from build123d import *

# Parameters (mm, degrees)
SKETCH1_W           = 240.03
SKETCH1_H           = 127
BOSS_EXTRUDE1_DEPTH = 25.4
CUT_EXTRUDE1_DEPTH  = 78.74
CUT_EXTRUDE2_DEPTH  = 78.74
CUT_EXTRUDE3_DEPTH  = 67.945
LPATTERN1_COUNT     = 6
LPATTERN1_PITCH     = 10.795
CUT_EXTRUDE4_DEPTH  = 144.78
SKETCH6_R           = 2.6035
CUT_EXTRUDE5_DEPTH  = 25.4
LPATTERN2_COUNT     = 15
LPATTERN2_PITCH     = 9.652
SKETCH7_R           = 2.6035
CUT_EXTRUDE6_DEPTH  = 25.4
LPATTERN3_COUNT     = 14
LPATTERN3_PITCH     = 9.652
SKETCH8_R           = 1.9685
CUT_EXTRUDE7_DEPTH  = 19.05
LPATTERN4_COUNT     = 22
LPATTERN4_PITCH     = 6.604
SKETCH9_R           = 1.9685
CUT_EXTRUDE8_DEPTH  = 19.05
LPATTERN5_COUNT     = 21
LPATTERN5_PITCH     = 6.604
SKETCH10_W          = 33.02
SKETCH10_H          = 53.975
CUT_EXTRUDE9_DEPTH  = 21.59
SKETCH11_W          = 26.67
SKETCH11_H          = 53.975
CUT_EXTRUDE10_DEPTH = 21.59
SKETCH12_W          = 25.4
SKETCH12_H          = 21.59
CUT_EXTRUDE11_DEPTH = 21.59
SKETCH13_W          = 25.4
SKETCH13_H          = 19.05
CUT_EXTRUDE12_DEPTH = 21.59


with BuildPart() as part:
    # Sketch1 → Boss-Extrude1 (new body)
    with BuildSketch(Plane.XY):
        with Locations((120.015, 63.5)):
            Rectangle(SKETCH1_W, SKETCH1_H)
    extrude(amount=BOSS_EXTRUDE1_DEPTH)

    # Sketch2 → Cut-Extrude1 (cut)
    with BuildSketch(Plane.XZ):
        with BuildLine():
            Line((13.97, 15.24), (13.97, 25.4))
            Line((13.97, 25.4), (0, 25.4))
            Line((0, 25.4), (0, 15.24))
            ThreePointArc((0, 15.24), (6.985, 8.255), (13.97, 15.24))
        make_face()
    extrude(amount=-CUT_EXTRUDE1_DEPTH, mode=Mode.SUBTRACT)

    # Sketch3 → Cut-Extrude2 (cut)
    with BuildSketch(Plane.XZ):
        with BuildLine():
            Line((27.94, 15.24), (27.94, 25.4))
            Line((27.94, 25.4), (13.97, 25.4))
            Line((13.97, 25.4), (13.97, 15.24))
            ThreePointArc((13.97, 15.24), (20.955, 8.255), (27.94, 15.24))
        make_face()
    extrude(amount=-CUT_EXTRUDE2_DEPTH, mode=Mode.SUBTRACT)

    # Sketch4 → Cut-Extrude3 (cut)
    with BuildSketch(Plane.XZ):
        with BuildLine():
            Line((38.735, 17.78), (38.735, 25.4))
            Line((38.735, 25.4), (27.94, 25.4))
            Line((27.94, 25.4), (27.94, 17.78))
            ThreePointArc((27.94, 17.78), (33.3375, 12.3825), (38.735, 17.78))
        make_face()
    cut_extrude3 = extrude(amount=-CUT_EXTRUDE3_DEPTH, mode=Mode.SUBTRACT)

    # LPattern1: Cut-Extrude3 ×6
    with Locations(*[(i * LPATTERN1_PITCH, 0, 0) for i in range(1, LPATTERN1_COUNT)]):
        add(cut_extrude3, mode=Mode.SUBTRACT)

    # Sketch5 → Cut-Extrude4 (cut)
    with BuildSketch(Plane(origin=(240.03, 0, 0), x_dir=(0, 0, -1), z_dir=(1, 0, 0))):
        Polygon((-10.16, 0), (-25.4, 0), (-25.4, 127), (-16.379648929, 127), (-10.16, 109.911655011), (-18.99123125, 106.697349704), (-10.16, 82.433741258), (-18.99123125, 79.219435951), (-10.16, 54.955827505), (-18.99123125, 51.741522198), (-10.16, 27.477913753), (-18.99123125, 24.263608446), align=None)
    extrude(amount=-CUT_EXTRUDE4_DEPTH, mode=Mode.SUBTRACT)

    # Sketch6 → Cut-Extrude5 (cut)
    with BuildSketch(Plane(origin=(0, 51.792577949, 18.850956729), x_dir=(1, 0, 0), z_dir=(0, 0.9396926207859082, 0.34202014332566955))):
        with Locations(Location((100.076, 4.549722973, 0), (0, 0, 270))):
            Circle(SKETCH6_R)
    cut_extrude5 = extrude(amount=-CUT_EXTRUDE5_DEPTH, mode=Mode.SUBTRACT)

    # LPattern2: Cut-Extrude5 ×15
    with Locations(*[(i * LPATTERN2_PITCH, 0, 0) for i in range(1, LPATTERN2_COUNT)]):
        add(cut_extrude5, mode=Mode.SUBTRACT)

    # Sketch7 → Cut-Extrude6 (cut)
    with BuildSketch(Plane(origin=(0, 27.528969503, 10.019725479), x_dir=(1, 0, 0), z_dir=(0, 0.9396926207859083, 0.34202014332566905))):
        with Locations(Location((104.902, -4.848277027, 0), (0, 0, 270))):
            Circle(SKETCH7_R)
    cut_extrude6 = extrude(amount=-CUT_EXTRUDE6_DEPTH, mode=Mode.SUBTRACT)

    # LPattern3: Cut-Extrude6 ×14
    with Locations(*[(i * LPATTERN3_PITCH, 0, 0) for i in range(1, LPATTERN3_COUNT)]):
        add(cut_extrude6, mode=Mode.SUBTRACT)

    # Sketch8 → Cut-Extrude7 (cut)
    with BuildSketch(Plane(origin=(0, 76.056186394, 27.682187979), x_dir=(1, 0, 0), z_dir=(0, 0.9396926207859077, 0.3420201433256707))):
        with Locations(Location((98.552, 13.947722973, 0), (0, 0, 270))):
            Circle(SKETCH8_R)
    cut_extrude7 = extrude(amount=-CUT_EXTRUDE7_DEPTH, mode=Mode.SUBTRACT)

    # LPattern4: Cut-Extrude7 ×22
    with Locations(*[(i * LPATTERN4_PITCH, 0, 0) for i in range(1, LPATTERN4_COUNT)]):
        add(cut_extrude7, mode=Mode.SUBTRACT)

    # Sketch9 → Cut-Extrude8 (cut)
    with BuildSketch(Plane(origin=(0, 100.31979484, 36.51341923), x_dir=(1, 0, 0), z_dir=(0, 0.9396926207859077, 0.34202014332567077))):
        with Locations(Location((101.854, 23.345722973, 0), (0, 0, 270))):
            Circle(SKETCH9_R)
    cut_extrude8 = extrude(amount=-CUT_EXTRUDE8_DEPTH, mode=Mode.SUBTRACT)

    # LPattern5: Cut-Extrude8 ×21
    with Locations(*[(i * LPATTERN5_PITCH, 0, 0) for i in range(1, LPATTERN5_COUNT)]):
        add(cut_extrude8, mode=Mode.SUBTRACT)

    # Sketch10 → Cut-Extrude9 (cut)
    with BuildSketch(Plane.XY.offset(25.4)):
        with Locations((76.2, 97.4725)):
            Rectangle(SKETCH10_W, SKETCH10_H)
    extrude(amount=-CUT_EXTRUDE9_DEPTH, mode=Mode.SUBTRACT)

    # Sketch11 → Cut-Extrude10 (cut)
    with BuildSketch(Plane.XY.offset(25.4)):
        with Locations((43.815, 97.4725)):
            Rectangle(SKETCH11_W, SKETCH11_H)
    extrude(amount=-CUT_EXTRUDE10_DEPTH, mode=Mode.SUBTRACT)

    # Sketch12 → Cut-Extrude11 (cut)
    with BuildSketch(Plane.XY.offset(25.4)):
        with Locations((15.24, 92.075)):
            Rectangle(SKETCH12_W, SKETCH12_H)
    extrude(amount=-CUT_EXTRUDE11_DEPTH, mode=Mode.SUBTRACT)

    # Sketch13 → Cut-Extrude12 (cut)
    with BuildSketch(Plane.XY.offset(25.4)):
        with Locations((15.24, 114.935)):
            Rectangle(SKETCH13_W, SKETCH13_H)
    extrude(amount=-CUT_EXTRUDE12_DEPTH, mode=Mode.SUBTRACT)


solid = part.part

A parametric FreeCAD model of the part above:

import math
import FreeCAD as App
import Part
import Sketcher
Q = App.Units.Quantity

doc = App.newDocument("Part")
params = doc.addObject("Spreadsheet::Sheet", "Params")
for row, (alias, value) in enumerate([
    ("sketch1_height", "5 in"),
    ("sketch1_width", "9.45 in"),
    ("pad1_length", "1 in"),
    ("sketch2_height", "0.4 in"),
    ("sketch2_radius", "0.275 in"),
    ("pocket1_length", "3.1 in"),
    ("sketch3_height", "0.4 in"),
    ("sketch3_radius", "0.275 in"),
    ("pocket2_length", "3.1 in"),
    ("sketch4_height", "0.3 in"),
    ("pocket3_length", "2.675 in"),
    ("linearpattern_pitch", "0.425 in"),
    ("sketch5_width", "5 in"),
    ("sketch5_height", "0.6 in"),
    ("sketch5_length", "0.37 in"),
    ("pocket4_length", "5.7 in"),
    ("sketch6_diameter", "0.205 in"),
    ("pocket5_length", "1 in"),
    ("linearpattern2_pitch", "0.38 in"),
    ("sketch7_diameter", "0.205 in"),
    ("pocket6_length", "1 in"),
    ("linearpattern3_pitch", "0.38 in"),
    ("sketch8_diameter", "0.155 in"),
    ("pocket7_length", "0.75 in"),
    ("linearpattern4_pitch", "0.26 in"),
    ("sketch9_diameter", "0.155 in"),
    ("pocket8_length", "0.75 in"),
    ("linearpattern5_pitch", "0.26 in"),
    ("sketch10_width", "1.3 in"),
    ("sketch10_height", "2.125 in"),
    ("pocket9_length", "0.85 in"),
    ("sketch11_width", "1.05 in"),
    ("sketch11_height", "2.125 in"),
    ("pocket10_length", "0.85 in"),
    ("sketch12_width", "1 in"),
    ("sketch12_height", "0.85 in"),
    ("pocket11_length", "0.85 in"),
    ("sketch13_width", "1 in"),
    ("sketch13_height", "0.75 in"),
    ("pocket12_length", "0.85 in"),
], start=1):
    params.set(f"A{row}", alias)
    params.set(f"B{row}", "=" + value)
    params.setAlias(f"B{row}", alias)

body = doc.addObject("PartDesign::Body", "Body")

# Sketch on XY plane
sketch1 = body.newObject("Sketcher::SketchObject", "Sketch")
sketch1.AttachmentSupport = (doc.getObject("XY_Plane"), [""])
sketch1.MapMode = "FlatFace"
sketch1.addGeometry(Part.LineSegment(App.Vector(0, 127, 0), App.Vector(0, 0, 0)), False)
sketch1.addGeometry(Part.LineSegment(App.Vector(0, 0, 0), App.Vector(240, 0, 0)), False)
sketch1.addGeometry(Part.LineSegment(App.Vector(240, 0, 0), App.Vector(240, 127, 0)), False)
sketch1.addGeometry(Part.LineSegment(App.Vector(240, 127, 0), App.Vector(0, 127, 0)), False)
sketch1.addConstraint(Sketcher.Constraint("Coincident", 0, 2, 1, 1))
sketch1.addConstraint(Sketcher.Constraint("Coincident", 1, 2, 2, 1))
sketch1.addConstraint(Sketcher.Constraint("Coincident", 2, 2, 3, 1))
sketch1.addConstraint(Sketcher.Constraint("Coincident", 3, 2, 0, 1))
sketch1.addConstraint(Sketcher.Constraint("Vertical", 0))
sketch1.addConstraint(Sketcher.Constraint("Horizontal", 1))
sketch1.addConstraint(Sketcher.Constraint("Vertical", 2))
sketch1.addConstraint(Sketcher.Constraint("Horizontal", 3))
sketch1.addConstraint(Sketcher.Constraint("Coincident", 0, 2, -1, 1))
sketch1.addConstraint(Sketcher.Constraint("DistanceY", 0, 2, 0, 1, Q("5 in")))
sketch1.addConstraint(Sketcher.Constraint("DistanceX", 1, 1, 1, 2, Q("9.45 in")))
sketch1.setExpression("Constraints[9]", "Params.sketch1_height")
sketch1.setExpression("Constraints[10]", "Params.sketch1_width")
pad1 = body.newObject("PartDesign::Pad", "Pad")
pad1.Profile = sketch1
pad1.setExpression("Length", "Params.pad1_length")

# Sketch on XZ plane
sketch2 = body.newObject("Sketcher::SketchObject", "Sketch001")
sketch2.AttachmentSupport = (doc.getObject("XZ_Plane"), [""])
sketch2.MapMode = "FlatFace"
sketch2.addGeometry(Part.LineSegment(App.Vector(14, 15, 0), App.Vector(14, 25, 0)), False)
sketch2.addGeometry(Part.LineSegment(App.Vector(14, 25, 0), App.Vector(0, 25, 0)), False)
sketch2.addGeometry(Part.LineSegment(App.Vector(0, 25, 0), App.Vector(0, 15, 0)), False)
sketch2.addGeometry(Part.ArcOfCircle(Part.Circle(App.Vector(7, 15, 0), App.Vector(0, 0, 1), 7), math.radians(180), math.radians(360)), False)
sketch2.addConstraint(Sketcher.Constraint("Coincident", 0, 2, 1, 1))
sketch2.addConstraint(Sketcher.Constraint("Coincident", 1, 2, 2, 1))
sketch2.addConstraint(Sketcher.Constraint("Tangent", 2, 2, 3, 1))
sketch2.addConstraint(Sketcher.Constraint("Tangent", 3, 2, 0, 1))
sketch2.addConstraint(Sketcher.Constraint("Vertical", 0))
sketch2.addConstraint(Sketcher.Constraint("Horizontal", 1))
sketch2.addConstraint(Sketcher.Constraint("Vertical", 2))
sketch2.addConstraint(Sketcher.Constraint("PointOnObject", 1, 2, -2))
sketch2.addConstraint(Sketcher.Constraint("DistanceY", 0, 1, 0, 2, Q("0.4 in")))
sketch2.addConstraint(Sketcher.Constraint("DistanceY", -1, 1, 0, 2, Q("1 in")))
sketch2.addConstraint(Sketcher.Constraint("Radius", 3, Q("0.275 in")))
sketch2.setExpression("Constraints[8]", "Params.sketch2_height")
sketch2.setExpression("Constraints[10]", "Params.sketch2_radius")
pocket1 = body.newObject("PartDesign::Pocket", "Pocket")
pocket1.Profile = sketch2
pocket1.setExpression("Length", "Params.pocket1_length")

# Sketch on XZ plane
sketch3 = body.newObject("Sketcher::SketchObject", "Sketch002")
sketch3.AttachmentSupport = (doc.getObject("XZ_Plane"), [""])
sketch3.MapMode = "FlatFace"
sketch3.addGeometry(Part.LineSegment(App.Vector(28, 15, 0), App.Vector(28, 25, 0)), False)
sketch3.addGeometry(Part.LineSegment(App.Vector(28, 25, 0), App.Vector(14, 25, 0)), False)
sketch3.addGeometry(Part.LineSegment(App.Vector(14, 25, 0), App.Vector(14, 15, 0)), False)
sketch3.addGeometry(Part.ArcOfCircle(Part.Circle(App.Vector(21, 15, 0), App.Vector(0, 0, 1), 7), math.radians(180), math.radians(360)), False)
sketch3.addConstraint(Sketcher.Constraint("Coincident", 0, 2, 1, 1))
sketch3.addConstraint(Sketcher.Constraint("Coincident", 1, 2, 2, 1))
sketch3.addConstraint(Sketcher.Constraint("Tangent", 2, 2, 3, 1))
sketch3.addConstraint(Sketcher.Constraint("Tangent", 3, 2, 0, 1))
sketch3.addConstraint(Sketcher.Constraint("Vertical", 0))
sketch3.addConstraint(Sketcher.Constraint("Horizontal", 1))
sketch3.addConstraint(Sketcher.Constraint("Vertical", 2))
sketch3.addConstraint(Sketcher.Constraint("DistanceY", 0, 1, 0, 2, Q("0.4 in")))
sketch3.addConstraint(Sketcher.Constraint("DistanceY", -1, 1, 0, 2, Q("1 in")))
sketch3.addConstraint(Sketcher.Constraint("Radius", 3, Q("0.275 in")))
sketch3.addConstraint(Sketcher.Constraint("DistanceX", -1, 1, 0, 2, Q("1.1 in")))
sketch3.setExpression("Constraints[7]", "Params.sketch3_height")
sketch3.setExpression("Constraints[9]", "Params.sketch3_radius")
pocket2 = body.newObject("PartDesign::Pocket", "Pocket001")
pocket2.Profile = sketch3
pocket2.setExpression("Length", "Params.pocket2_length")

# Sketch on XZ plane
sketch4 = body.newObject("Sketcher::SketchObject", "Sketch003")
sketch4.AttachmentSupport = (doc.getObject("XZ_Plane"), [""])
sketch4.MapMode = "FlatFace"
sketch4.addGeometry(Part.LineSegment(App.Vector(39, 18, 0), App.Vector(39, 25, 0)), False)
sketch4.addGeometry(Part.LineSegment(App.Vector(39, 25, 0), App.Vector(28, 25, 0)), False)
sketch4.addGeometry(Part.LineSegment(App.Vector(28, 25, 0), App.Vector(28, 18, 0)), False)
sketch4.addGeometry(Part.ArcOfCircle(Part.Circle(App.Vector(33, 18, 0), App.Vector(0, 0, 1), 5), math.radians(180), math.radians(360)), False)
sketch4.addConstraint(Sketcher.Constraint("Coincident", 0, 2, 1, 1))
sketch4.addConstraint(Sketcher.Constraint("Coincident", 1, 2, 2, 1))
sketch4.addConstraint(Sketcher.Constraint("Tangent", 2, 2, 3, 1))
sketch4.addConstraint(Sketcher.Constraint("Tangent", 3, 2, 0, 1))
sketch4.addConstraint(Sketcher.Constraint("Vertical", 0))
sketch4.addConstraint(Sketcher.Constraint("Horizontal", 1))
sketch4.addConstraint(Sketcher.Constraint("Vertical", 2))
sketch4.addConstraint(Sketcher.Constraint("DistanceY", 0, 1, 0, 2, Q("0.3 in")))
sketch4.addConstraint(Sketcher.Constraint("DistanceY", -1, 1, 0, 2, Q("1 in")))
sketch4.addConstraint(Sketcher.Constraint("DistanceX", -1, 1, 1, 2, Q("1.1 in")))
sketch4.addConstraint(Sketcher.Constraint("Radius", 3, Q("0.2125 in")))
sketch4.setExpression("Constraints[7]", "Params.sketch4_height")
pocket3 = body.newObject("PartDesign::Pocket", "Pocket002")
pocket3.Profile = sketch4
pocket3.setExpression("Length", "Params.pocket3_length")
doc.recompute()

linearpattern = body.newObject("PartDesign::LinearPattern", "LinearPattern")
linearpattern.Originals = [pocket3]
linearpattern.Direction = (doc.getObject("X_Axis"), [""])
linearpattern.Mode = "offset"
linearpattern.setExpression("Offset", "Params.linearpattern_pitch")
linearpattern.Occurrences = 6
body.Tip = linearpattern

# Sketch on YZ plane
sketch5 = body.newObject("Sketcher::SketchObject", "Sketch004")
sketch5.AttachmentSupport = (doc.getObject("YZ_Plane"), [""])
sketch5.MapMode = "FlatFace"
sketch5.AttachmentOffset = App.Placement(App.Vector(0, 0, 9.45 * 25.4), App.Rotation())
sketch5.addGeometry(Part.LineSegment(App.Vector(0, 25, 0), App.Vector(0, 10, 0)), False)
sketch5.addGeometry(Part.LineSegment(App.Vector(0, 10, 0), App.Vector(24, 19, 0)), False)
sketch5.addGeometry(Part.LineSegment(App.Vector(24, 19, 0), App.Vector(27, 10, 0)), False)
sketch5.addGeometry(Part.LineSegment(App.Vector(27, 10, 0), App.Vector(52, 19, 0)), False)
sketch5.addGeometry(Part.LineSegment(App.Vector(52, 19, 0), App.Vector(55, 10, 0)), False)
sketch5.addGeometry(Part.LineSegment(App.Vector(55, 10, 0), App.Vector(79, 19, 0)), False)
sketch5.addGeometry(Part.LineSegment(App.Vector(79, 19, 0), App.Vector(82, 10, 0)), False)
sketch5.addGeometry(Part.LineSegment(App.Vector(82, 10, 0), App.Vector(107, 19, 0)), False)
sketch5.addGeometry(Part.LineSegment(App.Vector(107, 19, 0), App.Vector(110, 10, 0)), False)
sketch5.addGeometry(Part.LineSegment(App.Vector(110, 10, 0), App.Vector(127, 16, 0)), False)
sketch5.addGeometry(Part.LineSegment(App.Vector(127, 16, 0), App.Vector(127, 25, 0)), False)
sketch5.addGeometry(Part.LineSegment(App.Vector(127, 25, 0), App.Vector(0, 25, 0)), False)
sketch5.addConstraint(Sketcher.Constraint("Coincident", 0, 2, 1, 1))
sketch5.addConstraint(Sketcher.Constraint("Coincident", 1, 2, 2, 1))
sketch5.addConstraint(Sketcher.Constraint("Coincident", 2, 2, 3, 1))
sketch5.addConstraint(Sketcher.Constraint("Coincident", 3, 2, 4, 1))
sketch5.addConstraint(Sketcher.Constraint("Coincident", 4, 2, 5, 1))
sketch5.addConstraint(Sketcher.Constraint("Coincident", 5, 2, 6, 1))
sketch5.addConstraint(Sketcher.Constraint("Coincident", 6, 2, 7, 1))
sketch5.addConstraint(Sketcher.Constraint("Coincident", 7, 2, 8, 1))
sketch5.addConstraint(Sketcher.Constraint("Coincident", 8, 2, 9, 1))
sketch5.addConstraint(Sketcher.Constraint("Coincident", 9, 2, 10, 1))
sketch5.addConstraint(Sketcher.Constraint("Coincident", 10, 2, 11, 1))
sketch5.addConstraint(Sketcher.Constraint("Coincident", 11, 2, 0, 1))
sketch5.addConstraint(Sketcher.Constraint("Vertical", 0))
sketch5.addConstraint(Sketcher.Constraint("Vertical", 10))
sketch5.addConstraint(Sketcher.Constraint("Horizontal", 11))
sketch5.addConstraint(Sketcher.Constraint("PointOnObject", 0, 2, -2))
sketch5.addConstraint(Sketcher.Constraint("Perpendicular", 1, 2))
sketch5.addConstraint(Sketcher.Constraint("Perpendicular", 2, 3))
sketch5.addConstraint(Sketcher.Constraint("Perpendicular", 3, 4))
sketch5.addConstraint(Sketcher.Constraint("Perpendicular", 4, 5))
sketch5.addConstraint(Sketcher.Constraint("Perpendicular", 5, 6))
sketch5.addConstraint(Sketcher.Constraint("Perpendicular", 6, 7))
sketch5.addConstraint(Sketcher.Constraint("Perpendicular", 7, 8))
sketch5.addConstraint(Sketcher.Constraint("Perpendicular", 8, 9))
sketch5.addConstraint(Sketcher.Constraint("Horizontal", 0, 2, 2, 2))
sketch5.addConstraint(Sketcher.Constraint("Horizontal", 1, 2, 3, 2))
sketch5.addConstraint(Sketcher.Constraint("Horizontal", 2, 2, 4, 2))
sketch5.addConstraint(Sketcher.Constraint("Horizontal", 3, 2, 5, 2))
sketch5.addConstraint(Sketcher.Constraint("Horizontal", 4, 2, 6, 2))
sketch5.addConstraint(Sketcher.Constraint("Horizontal", 5, 2, 7, 2))
sketch5.addConstraint(Sketcher.Constraint("Horizontal", 6, 2, 8, 2))
sketch5.addConstraint(Sketcher.Constraint("DistanceX", 11, 2, 11, 1, Q("5 in")))
sketch5.addConstraint(Sketcher.Constraint("DistanceY", 0, 2, 0, 1, Q("0.6 in")))
sketch5.addConstraint(Sketcher.Constraint("DistanceY", -1, 1, 10, 2, Q("1 in")))
sketch5.addConstraint(Sketcher.Constraint("Angle", 1, Q("20 deg")))
sketch5.addConstraint(Sketcher.Constraint("Distance", 2, Q("0.37 in")))
sketch5.setExpression("Constraints[31]", "Params.sketch5_width")
sketch5.setExpression("Constraints[32]", "Params.sketch5_height")
sketch5.setExpression("Constraints[35]", "Params.sketch5_length")
pocket4 = body.newObject("PartDesign::Pocket", "Pocket003")
pocket4.Profile = sketch5
pocket4.setExpression("Length", "Params.pocket4_length")

# Sketch on an angled plane
sketch6 = body.newObject("Sketcher::SketchObject", "Sketch005")
sketch6.Placement = App.Placement(App.Vector(0, 51.792578, 18.850957), App.Rotation(App.Vector(1, 0, 0), App.Vector(0, 0.342020143, -0.939692621), App.Vector(0, 0.939692621, 0.342020143), "ZXY"))
sketch6.addGeometry(Part.Circle(App.Vector(100.1, 4.5, 0), App.Vector(0, 0, 1), 2.6), False)
sketch6.addConstraint(Sketcher.Constraint("Diameter", 0, Q("0.205 in")))
sketch6.addConstraint(Sketcher.Constraint("DistanceX", -1, 1, 0, 3, Q("3.94 in")))
sketch6.addConstraint(Sketcher.Constraint("DistanceY", -1, 1, 0, 3, Q("4.549723 mm")))
sketch6.setExpression("Constraints[0]", "Params.sketch6_diameter")
pocket5 = body.newObject("PartDesign::Pocket", "Pocket004")
pocket5.Profile = sketch6
pocket5.setExpression("Length", "Params.pocket5_length")
doc.recompute()

linearpattern2 = body.newObject("PartDesign::LinearPattern", "LinearPattern001")
linearpattern2.Originals = [pocket5]
linearpattern2.Direction = (doc.getObject("X_Axis"), [""])
linearpattern2.Mode = "offset"
linearpattern2.setExpression("Offset", "Params.linearpattern2_pitch")
linearpattern2.Occurrences = 15
body.Tip = linearpattern2

# Sketch on an angled plane
sketch7 = body.newObject("Sketcher::SketchObject", "Sketch006")
sketch7.Placement = App.Placement(App.Vector(0, 27.52897, 10.019725), App.Rotation(App.Vector(1, 0, 0), App.Vector(0, 0.342020143, -0.939692621), App.Vector(0, 0.939692621, 0.342020143), "ZXY"))
sketch7.addGeometry(Part.Circle(App.Vector(104.9, -4.8, 0), App.Vector(0, 0, 1), 2.6), False)
sketch7.addConstraint(Sketcher.Constraint("Diameter", 0, Q("0.205 in")))
sketch7.addConstraint(Sketcher.Constraint("DistanceX", -1, 1, 0, 3, Q("4.13 in")))
sketch7.addConstraint(Sketcher.Constraint("DistanceY", 0, 3, -1, 1, Q("4.848277 mm")))
sketch7.setExpression("Constraints[0]", "Params.sketch7_diameter")
pocket6 = body.newObject("PartDesign::Pocket", "Pocket005")
pocket6.Profile = sketch7
pocket6.setExpression("Length", "Params.pocket6_length")
doc.recompute()

linearpattern3 = body.newObject("PartDesign::LinearPattern", "LinearPattern002")
linearpattern3.Originals = [pocket6]
linearpattern3.Direction = (doc.getObject("X_Axis"), [""])
linearpattern3.Mode = "offset"
linearpattern3.setExpression("Offset", "Params.linearpattern3_pitch")
linearpattern3.Occurrences = 14
body.Tip = linearpattern3

# Sketch on an angled plane
sketch8 = body.newObject("Sketcher::SketchObject", "Sketch007")
sketch8.Placement = App.Placement(App.Vector(0, 76.056186, 27.682188), App.Rotation(App.Vector(1, 0, 0), App.Vector(0, 0.342020143, -0.939692621), App.Vector(0, 0.939692621, 0.342020143), "ZXY"))
sketch8.addGeometry(Part.Circle(App.Vector(98.6, 13.9, 0), App.Vector(0, 0, 1), 2), False)
sketch8.addConstraint(Sketcher.Constraint("Diameter", 0, Q("0.155 in")))
sketch8.addConstraint(Sketcher.Constraint("DistanceX", -1, 1, 0, 3, Q("3.88 in")))
sketch8.addConstraint(Sketcher.Constraint("DistanceY", -1, 1, 0, 3, Q("13.947723 mm")))
sketch8.setExpression("Constraints[0]", "Params.sketch8_diameter")
pocket7 = body.newObject("PartDesign::Pocket", "Pocket006")
pocket7.Profile = sketch8
pocket7.setExpression("Length", "Params.pocket7_length")
doc.recompute()

linearpattern4 = body.newObject("PartDesign::LinearPattern", "LinearPattern003")
linearpattern4.Originals = [pocket7]
linearpattern4.Direction = (doc.getObject("X_Axis"), [""])
linearpattern4.Mode = "offset"
linearpattern4.setExpression("Offset", "Params.linearpattern4_pitch")
linearpattern4.Occurrences = 22
body.Tip = linearpattern4

# Sketch on an angled plane
sketch9 = body.newObject("Sketcher::SketchObject", "Sketch008")
sketch9.Placement = App.Placement(App.Vector(0, 100.319795, 36.513419), App.Rotation(App.Vector(1, 0, 0), App.Vector(0, 0.342020143, -0.939692621), App.Vector(0, 0.939692621, 0.342020143), "ZXY"))
sketch9.addGeometry(Part.Circle(App.Vector(101.9, 23.3, 0), App.Vector(0, 0, 1), 2), False)
sketch9.addConstraint(Sketcher.Constraint("Diameter", 0, Q("0.155 in")))
sketch9.addConstraint(Sketcher.Constraint("DistanceX", -1, 1, 0, 3, Q("4.01 in")))
sketch9.addConstraint(Sketcher.Constraint("DistanceY", -1, 1, 0, 3, Q("23.345723 mm")))
sketch9.setExpression("Constraints[0]", "Params.sketch9_diameter")
pocket8 = body.newObject("PartDesign::Pocket", "Pocket007")
pocket8.Profile = sketch9
pocket8.setExpression("Length", "Params.pocket8_length")
doc.recompute()

linearpattern5 = body.newObject("PartDesign::LinearPattern", "LinearPattern004")
linearpattern5.Originals = [pocket8]
linearpattern5.Direction = (doc.getObject("X_Axis"), [""])
linearpattern5.Mode = "offset"
linearpattern5.setExpression("Offset", "Params.linearpattern5_pitch")
linearpattern5.Occurrences = 21
body.Tip = linearpattern5

# Sketch on XY plane
sketch10 = body.newObject("Sketcher::SketchObject", "Sketch009")
sketch10.AttachmentSupport = (doc.getObject("XY_Plane"), [""])
sketch10.MapMode = "FlatFace"
sketch10.AttachmentOffset = App.Placement(App.Vector(0, 0, 1 * 25.4), App.Rotation())
sketch10.addGeometry(Part.LineSegment(App.Vector(60, 124, 0), App.Vector(60, 70, 0)), False)
sketch10.addGeometry(Part.LineSegment(App.Vector(60, 70, 0), App.Vector(93, 70, 0)), False)
sketch10.addGeometry(Part.LineSegment(App.Vector(93, 70, 0), App.Vector(93, 124, 0)), False)
sketch10.addGeometry(Part.LineSegment(App.Vector(93, 124, 0), App.Vector(60, 124, 0)), False)
sketch10.addConstraint(Sketcher.Constraint("Coincident", 0, 2, 1, 1))
sketch10.addConstraint(Sketcher.Constraint("Coincident", 1, 2, 2, 1))
sketch10.addConstraint(Sketcher.Constraint("Coincident", 2, 2, 3, 1))
sketch10.addConstraint(Sketcher.Constraint("Coincident", 3, 2, 0, 1))
sketch10.addConstraint(Sketcher.Constraint("Vertical", 0))
sketch10.addConstraint(Sketcher.Constraint("Horizontal", 1))
sketch10.addConstraint(Sketcher.Constraint("Vertical", 2))
sketch10.addConstraint(Sketcher.Constraint("Horizontal", 3))
sketch10.addConstraint(Sketcher.Constraint("DistanceX", 1, 1, 1, 2, Q("1.3 in")))
sketch10.addConstraint(Sketcher.Constraint("DistanceY", -1, 1, 2, 2, Q("4.9 in")))
sketch10.addConstraint(Sketcher.Constraint("DistanceY", 0, 2, 0, 1, Q("2.125 in")))
sketch10.addConstraint(Sketcher.Constraint("DistanceX", -1, 1, 0, 2, Q("2.35 in")))
sketch10.setExpression("Constraints[8]", "Params.sketch10_width")
sketch10.setExpression("Constraints[10]", "Params.sketch10_height")
pocket9 = body.newObject("PartDesign::Pocket", "Pocket008")
pocket9.Profile = sketch10
pocket9.setExpression("Length", "Params.pocket9_length")

# Sketch on XY plane
sketch11 = body.newObject("Sketcher::SketchObject", "Sketch010")
sketch11.AttachmentSupport = (doc.getObject("XY_Plane"), [""])
sketch11.MapMode = "FlatFace"
sketch11.AttachmentOffset = App.Placement(App.Vector(0, 0, 1 * 25.4), App.Rotation())
sketch11.addGeometry(Part.LineSegment(App.Vector(30, 124, 0), App.Vector(30, 70, 0)), False)
sketch11.addGeometry(Part.LineSegment(App.Vector(30, 70, 0), App.Vector(57, 70, 0)), False)
sketch11.addGeometry(Part.LineSegment(App.Vector(57, 70, 0), App.Vector(57, 124, 0)), False)
sketch11.addGeometry(Part.LineSegment(App.Vector(57, 124, 0), App.Vector(30, 124, 0)), False)
sketch11.addConstraint(Sketcher.Constraint("Coincident", 0, 2, 1, 1))
sketch11.addConstraint(Sketcher.Constraint("Coincident", 1, 2, 2, 1))
sketch11.addConstraint(Sketcher.Constraint("Coincident", 2, 2, 3, 1))
sketch11.addConstraint(Sketcher.Constraint("Coincident", 3, 2, 0, 1))
sketch11.addConstraint(Sketcher.Constraint("Vertical", 0))
sketch11.addConstraint(Sketcher.Constraint("Horizontal", 1))
sketch11.addConstraint(Sketcher.Constraint("Vertical", 2))
sketch11.addConstraint(Sketcher.Constraint("Horizontal", 3))
sketch11.addConstraint(Sketcher.Constraint("DistanceX", 1, 1, 1, 2, Q("1.05 in")))
sketch11.addConstraint(Sketcher.Constraint("DistanceX", -1, 1, 0, 2, Q("1.2 in")))
sketch11.addConstraint(Sketcher.Constraint("DistanceY", -1, 1, 2, 2, Q("4.9 in")))
sketch11.addConstraint(Sketcher.Constraint("DistanceY", 0, 2, 0, 1, Q("2.125 in")))
sketch11.setExpression("Constraints[8]", "Params.sketch11_width")
sketch11.setExpression("Constraints[11]", "Params.sketch11_height")
pocket10 = body.newObject("PartDesign::Pocket", "Pocket009")
pocket10.Profile = sketch11
pocket10.setExpression("Length", "Params.pocket10_length")

# Sketch on XY plane
sketch12 = body.newObject("Sketcher::SketchObject", "Sketch011")
sketch12.AttachmentSupport = (doc.getObject("XY_Plane"), [""])
sketch12.MapMode = "FlatFace"
sketch12.AttachmentOffset = App.Placement(App.Vector(0, 0, 1 * 25.4), App.Rotation())
sketch12.addGeometry(Part.LineSegment(App.Vector(3, 103, 0), App.Vector(3, 81, 0)), False)
sketch12.addGeometry(Part.LineSegment(App.Vector(3, 81, 0), App.Vector(28, 81, 0)), False)
sketch12.addGeometry(Part.LineSegment(App.Vector(28, 81, 0), App.Vector(28, 103, 0)), False)
sketch12.addGeometry(Part.LineSegment(App.Vector(28, 103, 0), App.Vector(3, 103, 0)), False)
sketch12.addConstraint(Sketcher.Constraint("Coincident", 0, 2, 1, 1))
sketch12.addConstraint(Sketcher.Constraint("Coincident", 1, 2, 2, 1))
sketch12.addConstraint(Sketcher.Constraint("Coincident", 2, 2, 3, 1))
sketch12.addConstraint(Sketcher.Constraint("Coincident", 3, 2, 0, 1))
sketch12.addConstraint(Sketcher.Constraint("Vertical", 0))
sketch12.addConstraint(Sketcher.Constraint("Horizontal", 1))
sketch12.addConstraint(Sketcher.Constraint("Vertical", 2))
sketch12.addConstraint(Sketcher.Constraint("Horizontal", 3))
sketch12.addConstraint(Sketcher.Constraint("DistanceX", 1, 1, 1, 2, Q("1 in")))
sketch12.addConstraint(Sketcher.Constraint("DistanceY", 0, 2, 0, 1, Q("0.85 in")))
sketch12.addConstraint(Sketcher.Constraint("DistanceX", -1, 1, 0, 2, Q("0.1 in")))
sketch12.addConstraint(Sketcher.Constraint("DistanceY", -1, 1, 0, 2, Q("3.2 in")))
sketch12.setExpression("Constraints[8]", "Params.sketch12_width")
sketch12.setExpression("Constraints[9]", "Params.sketch12_height")
pocket11 = body.newObject("PartDesign::Pocket", "Pocket010")
pocket11.Profile = sketch12
pocket11.setExpression("Length", "Params.pocket11_length")

# Sketch on XY plane
sketch13 = body.newObject("Sketcher::SketchObject", "Sketch012")
sketch13.AttachmentSupport = (doc.getObject("XY_Plane"), [""])
sketch13.MapMode = "FlatFace"
sketch13.AttachmentOffset = App.Placement(App.Vector(0, 0, 1 * 25.4), App.Rotation())
sketch13.addGeometry(Part.LineSegment(App.Vector(3, 124, 0), App.Vector(3, 105, 0)), False)
sketch13.addGeometry(Part.LineSegment(App.Vector(3, 105, 0), App.Vector(28, 105, 0)), False)
sketch13.addGeometry(Part.LineSegment(App.Vector(28, 105, 0), App.Vector(28, 124, 0)), False)
sketch13.addGeometry(Part.LineSegment(App.Vector(28, 124, 0), App.Vector(3, 124, 0)), False)
sketch13.addConstraint(Sketcher.Constraint("Coincident", 0, 2, 1, 1))
sketch13.addConstraint(Sketcher.Constraint("Coincident", 1, 2, 2, 1))
sketch13.addConstraint(Sketcher.Constraint("Coincident", 2, 2, 3, 1))
sketch13.addConstraint(Sketcher.Constraint("Coincident", 3, 2, 0, 1))
sketch13.addConstraint(Sketcher.Constraint("Vertical", 0))
sketch13.addConstraint(Sketcher.Constraint("Horizontal", 1))
sketch13.addConstraint(Sketcher.Constraint("Vertical", 2))
sketch13.addConstraint(Sketcher.Constraint("Horizontal", 3))
sketch13.addConstraint(Sketcher.Constraint("DistanceX", 1, 1, 1, 2, Q("1 in")))
sketch13.addConstraint(Sketcher.Constraint("DistanceY", 0, 2, 0, 1, Q("0.75 in")))
sketch13.addConstraint(Sketcher.Constraint("DistanceX", -1, 1, 0, 2, Q("0.1 in")))
sketch13.addConstraint(Sketcher.Constraint("DistanceY", -1, 1, 2, 2, Q("4.9 in")))
sketch13.setExpression("Constraints[8]", "Params.sketch13_width")
sketch13.setExpression("Constraints[9]", "Params.sketch13_height")
pocket12 = body.newObject("PartDesign::Pocket", "Pocket011")
pocket12.Profile = sketch13
pocket12.setExpression("Length", "Params.pocket12_length")

doc.recompute()
